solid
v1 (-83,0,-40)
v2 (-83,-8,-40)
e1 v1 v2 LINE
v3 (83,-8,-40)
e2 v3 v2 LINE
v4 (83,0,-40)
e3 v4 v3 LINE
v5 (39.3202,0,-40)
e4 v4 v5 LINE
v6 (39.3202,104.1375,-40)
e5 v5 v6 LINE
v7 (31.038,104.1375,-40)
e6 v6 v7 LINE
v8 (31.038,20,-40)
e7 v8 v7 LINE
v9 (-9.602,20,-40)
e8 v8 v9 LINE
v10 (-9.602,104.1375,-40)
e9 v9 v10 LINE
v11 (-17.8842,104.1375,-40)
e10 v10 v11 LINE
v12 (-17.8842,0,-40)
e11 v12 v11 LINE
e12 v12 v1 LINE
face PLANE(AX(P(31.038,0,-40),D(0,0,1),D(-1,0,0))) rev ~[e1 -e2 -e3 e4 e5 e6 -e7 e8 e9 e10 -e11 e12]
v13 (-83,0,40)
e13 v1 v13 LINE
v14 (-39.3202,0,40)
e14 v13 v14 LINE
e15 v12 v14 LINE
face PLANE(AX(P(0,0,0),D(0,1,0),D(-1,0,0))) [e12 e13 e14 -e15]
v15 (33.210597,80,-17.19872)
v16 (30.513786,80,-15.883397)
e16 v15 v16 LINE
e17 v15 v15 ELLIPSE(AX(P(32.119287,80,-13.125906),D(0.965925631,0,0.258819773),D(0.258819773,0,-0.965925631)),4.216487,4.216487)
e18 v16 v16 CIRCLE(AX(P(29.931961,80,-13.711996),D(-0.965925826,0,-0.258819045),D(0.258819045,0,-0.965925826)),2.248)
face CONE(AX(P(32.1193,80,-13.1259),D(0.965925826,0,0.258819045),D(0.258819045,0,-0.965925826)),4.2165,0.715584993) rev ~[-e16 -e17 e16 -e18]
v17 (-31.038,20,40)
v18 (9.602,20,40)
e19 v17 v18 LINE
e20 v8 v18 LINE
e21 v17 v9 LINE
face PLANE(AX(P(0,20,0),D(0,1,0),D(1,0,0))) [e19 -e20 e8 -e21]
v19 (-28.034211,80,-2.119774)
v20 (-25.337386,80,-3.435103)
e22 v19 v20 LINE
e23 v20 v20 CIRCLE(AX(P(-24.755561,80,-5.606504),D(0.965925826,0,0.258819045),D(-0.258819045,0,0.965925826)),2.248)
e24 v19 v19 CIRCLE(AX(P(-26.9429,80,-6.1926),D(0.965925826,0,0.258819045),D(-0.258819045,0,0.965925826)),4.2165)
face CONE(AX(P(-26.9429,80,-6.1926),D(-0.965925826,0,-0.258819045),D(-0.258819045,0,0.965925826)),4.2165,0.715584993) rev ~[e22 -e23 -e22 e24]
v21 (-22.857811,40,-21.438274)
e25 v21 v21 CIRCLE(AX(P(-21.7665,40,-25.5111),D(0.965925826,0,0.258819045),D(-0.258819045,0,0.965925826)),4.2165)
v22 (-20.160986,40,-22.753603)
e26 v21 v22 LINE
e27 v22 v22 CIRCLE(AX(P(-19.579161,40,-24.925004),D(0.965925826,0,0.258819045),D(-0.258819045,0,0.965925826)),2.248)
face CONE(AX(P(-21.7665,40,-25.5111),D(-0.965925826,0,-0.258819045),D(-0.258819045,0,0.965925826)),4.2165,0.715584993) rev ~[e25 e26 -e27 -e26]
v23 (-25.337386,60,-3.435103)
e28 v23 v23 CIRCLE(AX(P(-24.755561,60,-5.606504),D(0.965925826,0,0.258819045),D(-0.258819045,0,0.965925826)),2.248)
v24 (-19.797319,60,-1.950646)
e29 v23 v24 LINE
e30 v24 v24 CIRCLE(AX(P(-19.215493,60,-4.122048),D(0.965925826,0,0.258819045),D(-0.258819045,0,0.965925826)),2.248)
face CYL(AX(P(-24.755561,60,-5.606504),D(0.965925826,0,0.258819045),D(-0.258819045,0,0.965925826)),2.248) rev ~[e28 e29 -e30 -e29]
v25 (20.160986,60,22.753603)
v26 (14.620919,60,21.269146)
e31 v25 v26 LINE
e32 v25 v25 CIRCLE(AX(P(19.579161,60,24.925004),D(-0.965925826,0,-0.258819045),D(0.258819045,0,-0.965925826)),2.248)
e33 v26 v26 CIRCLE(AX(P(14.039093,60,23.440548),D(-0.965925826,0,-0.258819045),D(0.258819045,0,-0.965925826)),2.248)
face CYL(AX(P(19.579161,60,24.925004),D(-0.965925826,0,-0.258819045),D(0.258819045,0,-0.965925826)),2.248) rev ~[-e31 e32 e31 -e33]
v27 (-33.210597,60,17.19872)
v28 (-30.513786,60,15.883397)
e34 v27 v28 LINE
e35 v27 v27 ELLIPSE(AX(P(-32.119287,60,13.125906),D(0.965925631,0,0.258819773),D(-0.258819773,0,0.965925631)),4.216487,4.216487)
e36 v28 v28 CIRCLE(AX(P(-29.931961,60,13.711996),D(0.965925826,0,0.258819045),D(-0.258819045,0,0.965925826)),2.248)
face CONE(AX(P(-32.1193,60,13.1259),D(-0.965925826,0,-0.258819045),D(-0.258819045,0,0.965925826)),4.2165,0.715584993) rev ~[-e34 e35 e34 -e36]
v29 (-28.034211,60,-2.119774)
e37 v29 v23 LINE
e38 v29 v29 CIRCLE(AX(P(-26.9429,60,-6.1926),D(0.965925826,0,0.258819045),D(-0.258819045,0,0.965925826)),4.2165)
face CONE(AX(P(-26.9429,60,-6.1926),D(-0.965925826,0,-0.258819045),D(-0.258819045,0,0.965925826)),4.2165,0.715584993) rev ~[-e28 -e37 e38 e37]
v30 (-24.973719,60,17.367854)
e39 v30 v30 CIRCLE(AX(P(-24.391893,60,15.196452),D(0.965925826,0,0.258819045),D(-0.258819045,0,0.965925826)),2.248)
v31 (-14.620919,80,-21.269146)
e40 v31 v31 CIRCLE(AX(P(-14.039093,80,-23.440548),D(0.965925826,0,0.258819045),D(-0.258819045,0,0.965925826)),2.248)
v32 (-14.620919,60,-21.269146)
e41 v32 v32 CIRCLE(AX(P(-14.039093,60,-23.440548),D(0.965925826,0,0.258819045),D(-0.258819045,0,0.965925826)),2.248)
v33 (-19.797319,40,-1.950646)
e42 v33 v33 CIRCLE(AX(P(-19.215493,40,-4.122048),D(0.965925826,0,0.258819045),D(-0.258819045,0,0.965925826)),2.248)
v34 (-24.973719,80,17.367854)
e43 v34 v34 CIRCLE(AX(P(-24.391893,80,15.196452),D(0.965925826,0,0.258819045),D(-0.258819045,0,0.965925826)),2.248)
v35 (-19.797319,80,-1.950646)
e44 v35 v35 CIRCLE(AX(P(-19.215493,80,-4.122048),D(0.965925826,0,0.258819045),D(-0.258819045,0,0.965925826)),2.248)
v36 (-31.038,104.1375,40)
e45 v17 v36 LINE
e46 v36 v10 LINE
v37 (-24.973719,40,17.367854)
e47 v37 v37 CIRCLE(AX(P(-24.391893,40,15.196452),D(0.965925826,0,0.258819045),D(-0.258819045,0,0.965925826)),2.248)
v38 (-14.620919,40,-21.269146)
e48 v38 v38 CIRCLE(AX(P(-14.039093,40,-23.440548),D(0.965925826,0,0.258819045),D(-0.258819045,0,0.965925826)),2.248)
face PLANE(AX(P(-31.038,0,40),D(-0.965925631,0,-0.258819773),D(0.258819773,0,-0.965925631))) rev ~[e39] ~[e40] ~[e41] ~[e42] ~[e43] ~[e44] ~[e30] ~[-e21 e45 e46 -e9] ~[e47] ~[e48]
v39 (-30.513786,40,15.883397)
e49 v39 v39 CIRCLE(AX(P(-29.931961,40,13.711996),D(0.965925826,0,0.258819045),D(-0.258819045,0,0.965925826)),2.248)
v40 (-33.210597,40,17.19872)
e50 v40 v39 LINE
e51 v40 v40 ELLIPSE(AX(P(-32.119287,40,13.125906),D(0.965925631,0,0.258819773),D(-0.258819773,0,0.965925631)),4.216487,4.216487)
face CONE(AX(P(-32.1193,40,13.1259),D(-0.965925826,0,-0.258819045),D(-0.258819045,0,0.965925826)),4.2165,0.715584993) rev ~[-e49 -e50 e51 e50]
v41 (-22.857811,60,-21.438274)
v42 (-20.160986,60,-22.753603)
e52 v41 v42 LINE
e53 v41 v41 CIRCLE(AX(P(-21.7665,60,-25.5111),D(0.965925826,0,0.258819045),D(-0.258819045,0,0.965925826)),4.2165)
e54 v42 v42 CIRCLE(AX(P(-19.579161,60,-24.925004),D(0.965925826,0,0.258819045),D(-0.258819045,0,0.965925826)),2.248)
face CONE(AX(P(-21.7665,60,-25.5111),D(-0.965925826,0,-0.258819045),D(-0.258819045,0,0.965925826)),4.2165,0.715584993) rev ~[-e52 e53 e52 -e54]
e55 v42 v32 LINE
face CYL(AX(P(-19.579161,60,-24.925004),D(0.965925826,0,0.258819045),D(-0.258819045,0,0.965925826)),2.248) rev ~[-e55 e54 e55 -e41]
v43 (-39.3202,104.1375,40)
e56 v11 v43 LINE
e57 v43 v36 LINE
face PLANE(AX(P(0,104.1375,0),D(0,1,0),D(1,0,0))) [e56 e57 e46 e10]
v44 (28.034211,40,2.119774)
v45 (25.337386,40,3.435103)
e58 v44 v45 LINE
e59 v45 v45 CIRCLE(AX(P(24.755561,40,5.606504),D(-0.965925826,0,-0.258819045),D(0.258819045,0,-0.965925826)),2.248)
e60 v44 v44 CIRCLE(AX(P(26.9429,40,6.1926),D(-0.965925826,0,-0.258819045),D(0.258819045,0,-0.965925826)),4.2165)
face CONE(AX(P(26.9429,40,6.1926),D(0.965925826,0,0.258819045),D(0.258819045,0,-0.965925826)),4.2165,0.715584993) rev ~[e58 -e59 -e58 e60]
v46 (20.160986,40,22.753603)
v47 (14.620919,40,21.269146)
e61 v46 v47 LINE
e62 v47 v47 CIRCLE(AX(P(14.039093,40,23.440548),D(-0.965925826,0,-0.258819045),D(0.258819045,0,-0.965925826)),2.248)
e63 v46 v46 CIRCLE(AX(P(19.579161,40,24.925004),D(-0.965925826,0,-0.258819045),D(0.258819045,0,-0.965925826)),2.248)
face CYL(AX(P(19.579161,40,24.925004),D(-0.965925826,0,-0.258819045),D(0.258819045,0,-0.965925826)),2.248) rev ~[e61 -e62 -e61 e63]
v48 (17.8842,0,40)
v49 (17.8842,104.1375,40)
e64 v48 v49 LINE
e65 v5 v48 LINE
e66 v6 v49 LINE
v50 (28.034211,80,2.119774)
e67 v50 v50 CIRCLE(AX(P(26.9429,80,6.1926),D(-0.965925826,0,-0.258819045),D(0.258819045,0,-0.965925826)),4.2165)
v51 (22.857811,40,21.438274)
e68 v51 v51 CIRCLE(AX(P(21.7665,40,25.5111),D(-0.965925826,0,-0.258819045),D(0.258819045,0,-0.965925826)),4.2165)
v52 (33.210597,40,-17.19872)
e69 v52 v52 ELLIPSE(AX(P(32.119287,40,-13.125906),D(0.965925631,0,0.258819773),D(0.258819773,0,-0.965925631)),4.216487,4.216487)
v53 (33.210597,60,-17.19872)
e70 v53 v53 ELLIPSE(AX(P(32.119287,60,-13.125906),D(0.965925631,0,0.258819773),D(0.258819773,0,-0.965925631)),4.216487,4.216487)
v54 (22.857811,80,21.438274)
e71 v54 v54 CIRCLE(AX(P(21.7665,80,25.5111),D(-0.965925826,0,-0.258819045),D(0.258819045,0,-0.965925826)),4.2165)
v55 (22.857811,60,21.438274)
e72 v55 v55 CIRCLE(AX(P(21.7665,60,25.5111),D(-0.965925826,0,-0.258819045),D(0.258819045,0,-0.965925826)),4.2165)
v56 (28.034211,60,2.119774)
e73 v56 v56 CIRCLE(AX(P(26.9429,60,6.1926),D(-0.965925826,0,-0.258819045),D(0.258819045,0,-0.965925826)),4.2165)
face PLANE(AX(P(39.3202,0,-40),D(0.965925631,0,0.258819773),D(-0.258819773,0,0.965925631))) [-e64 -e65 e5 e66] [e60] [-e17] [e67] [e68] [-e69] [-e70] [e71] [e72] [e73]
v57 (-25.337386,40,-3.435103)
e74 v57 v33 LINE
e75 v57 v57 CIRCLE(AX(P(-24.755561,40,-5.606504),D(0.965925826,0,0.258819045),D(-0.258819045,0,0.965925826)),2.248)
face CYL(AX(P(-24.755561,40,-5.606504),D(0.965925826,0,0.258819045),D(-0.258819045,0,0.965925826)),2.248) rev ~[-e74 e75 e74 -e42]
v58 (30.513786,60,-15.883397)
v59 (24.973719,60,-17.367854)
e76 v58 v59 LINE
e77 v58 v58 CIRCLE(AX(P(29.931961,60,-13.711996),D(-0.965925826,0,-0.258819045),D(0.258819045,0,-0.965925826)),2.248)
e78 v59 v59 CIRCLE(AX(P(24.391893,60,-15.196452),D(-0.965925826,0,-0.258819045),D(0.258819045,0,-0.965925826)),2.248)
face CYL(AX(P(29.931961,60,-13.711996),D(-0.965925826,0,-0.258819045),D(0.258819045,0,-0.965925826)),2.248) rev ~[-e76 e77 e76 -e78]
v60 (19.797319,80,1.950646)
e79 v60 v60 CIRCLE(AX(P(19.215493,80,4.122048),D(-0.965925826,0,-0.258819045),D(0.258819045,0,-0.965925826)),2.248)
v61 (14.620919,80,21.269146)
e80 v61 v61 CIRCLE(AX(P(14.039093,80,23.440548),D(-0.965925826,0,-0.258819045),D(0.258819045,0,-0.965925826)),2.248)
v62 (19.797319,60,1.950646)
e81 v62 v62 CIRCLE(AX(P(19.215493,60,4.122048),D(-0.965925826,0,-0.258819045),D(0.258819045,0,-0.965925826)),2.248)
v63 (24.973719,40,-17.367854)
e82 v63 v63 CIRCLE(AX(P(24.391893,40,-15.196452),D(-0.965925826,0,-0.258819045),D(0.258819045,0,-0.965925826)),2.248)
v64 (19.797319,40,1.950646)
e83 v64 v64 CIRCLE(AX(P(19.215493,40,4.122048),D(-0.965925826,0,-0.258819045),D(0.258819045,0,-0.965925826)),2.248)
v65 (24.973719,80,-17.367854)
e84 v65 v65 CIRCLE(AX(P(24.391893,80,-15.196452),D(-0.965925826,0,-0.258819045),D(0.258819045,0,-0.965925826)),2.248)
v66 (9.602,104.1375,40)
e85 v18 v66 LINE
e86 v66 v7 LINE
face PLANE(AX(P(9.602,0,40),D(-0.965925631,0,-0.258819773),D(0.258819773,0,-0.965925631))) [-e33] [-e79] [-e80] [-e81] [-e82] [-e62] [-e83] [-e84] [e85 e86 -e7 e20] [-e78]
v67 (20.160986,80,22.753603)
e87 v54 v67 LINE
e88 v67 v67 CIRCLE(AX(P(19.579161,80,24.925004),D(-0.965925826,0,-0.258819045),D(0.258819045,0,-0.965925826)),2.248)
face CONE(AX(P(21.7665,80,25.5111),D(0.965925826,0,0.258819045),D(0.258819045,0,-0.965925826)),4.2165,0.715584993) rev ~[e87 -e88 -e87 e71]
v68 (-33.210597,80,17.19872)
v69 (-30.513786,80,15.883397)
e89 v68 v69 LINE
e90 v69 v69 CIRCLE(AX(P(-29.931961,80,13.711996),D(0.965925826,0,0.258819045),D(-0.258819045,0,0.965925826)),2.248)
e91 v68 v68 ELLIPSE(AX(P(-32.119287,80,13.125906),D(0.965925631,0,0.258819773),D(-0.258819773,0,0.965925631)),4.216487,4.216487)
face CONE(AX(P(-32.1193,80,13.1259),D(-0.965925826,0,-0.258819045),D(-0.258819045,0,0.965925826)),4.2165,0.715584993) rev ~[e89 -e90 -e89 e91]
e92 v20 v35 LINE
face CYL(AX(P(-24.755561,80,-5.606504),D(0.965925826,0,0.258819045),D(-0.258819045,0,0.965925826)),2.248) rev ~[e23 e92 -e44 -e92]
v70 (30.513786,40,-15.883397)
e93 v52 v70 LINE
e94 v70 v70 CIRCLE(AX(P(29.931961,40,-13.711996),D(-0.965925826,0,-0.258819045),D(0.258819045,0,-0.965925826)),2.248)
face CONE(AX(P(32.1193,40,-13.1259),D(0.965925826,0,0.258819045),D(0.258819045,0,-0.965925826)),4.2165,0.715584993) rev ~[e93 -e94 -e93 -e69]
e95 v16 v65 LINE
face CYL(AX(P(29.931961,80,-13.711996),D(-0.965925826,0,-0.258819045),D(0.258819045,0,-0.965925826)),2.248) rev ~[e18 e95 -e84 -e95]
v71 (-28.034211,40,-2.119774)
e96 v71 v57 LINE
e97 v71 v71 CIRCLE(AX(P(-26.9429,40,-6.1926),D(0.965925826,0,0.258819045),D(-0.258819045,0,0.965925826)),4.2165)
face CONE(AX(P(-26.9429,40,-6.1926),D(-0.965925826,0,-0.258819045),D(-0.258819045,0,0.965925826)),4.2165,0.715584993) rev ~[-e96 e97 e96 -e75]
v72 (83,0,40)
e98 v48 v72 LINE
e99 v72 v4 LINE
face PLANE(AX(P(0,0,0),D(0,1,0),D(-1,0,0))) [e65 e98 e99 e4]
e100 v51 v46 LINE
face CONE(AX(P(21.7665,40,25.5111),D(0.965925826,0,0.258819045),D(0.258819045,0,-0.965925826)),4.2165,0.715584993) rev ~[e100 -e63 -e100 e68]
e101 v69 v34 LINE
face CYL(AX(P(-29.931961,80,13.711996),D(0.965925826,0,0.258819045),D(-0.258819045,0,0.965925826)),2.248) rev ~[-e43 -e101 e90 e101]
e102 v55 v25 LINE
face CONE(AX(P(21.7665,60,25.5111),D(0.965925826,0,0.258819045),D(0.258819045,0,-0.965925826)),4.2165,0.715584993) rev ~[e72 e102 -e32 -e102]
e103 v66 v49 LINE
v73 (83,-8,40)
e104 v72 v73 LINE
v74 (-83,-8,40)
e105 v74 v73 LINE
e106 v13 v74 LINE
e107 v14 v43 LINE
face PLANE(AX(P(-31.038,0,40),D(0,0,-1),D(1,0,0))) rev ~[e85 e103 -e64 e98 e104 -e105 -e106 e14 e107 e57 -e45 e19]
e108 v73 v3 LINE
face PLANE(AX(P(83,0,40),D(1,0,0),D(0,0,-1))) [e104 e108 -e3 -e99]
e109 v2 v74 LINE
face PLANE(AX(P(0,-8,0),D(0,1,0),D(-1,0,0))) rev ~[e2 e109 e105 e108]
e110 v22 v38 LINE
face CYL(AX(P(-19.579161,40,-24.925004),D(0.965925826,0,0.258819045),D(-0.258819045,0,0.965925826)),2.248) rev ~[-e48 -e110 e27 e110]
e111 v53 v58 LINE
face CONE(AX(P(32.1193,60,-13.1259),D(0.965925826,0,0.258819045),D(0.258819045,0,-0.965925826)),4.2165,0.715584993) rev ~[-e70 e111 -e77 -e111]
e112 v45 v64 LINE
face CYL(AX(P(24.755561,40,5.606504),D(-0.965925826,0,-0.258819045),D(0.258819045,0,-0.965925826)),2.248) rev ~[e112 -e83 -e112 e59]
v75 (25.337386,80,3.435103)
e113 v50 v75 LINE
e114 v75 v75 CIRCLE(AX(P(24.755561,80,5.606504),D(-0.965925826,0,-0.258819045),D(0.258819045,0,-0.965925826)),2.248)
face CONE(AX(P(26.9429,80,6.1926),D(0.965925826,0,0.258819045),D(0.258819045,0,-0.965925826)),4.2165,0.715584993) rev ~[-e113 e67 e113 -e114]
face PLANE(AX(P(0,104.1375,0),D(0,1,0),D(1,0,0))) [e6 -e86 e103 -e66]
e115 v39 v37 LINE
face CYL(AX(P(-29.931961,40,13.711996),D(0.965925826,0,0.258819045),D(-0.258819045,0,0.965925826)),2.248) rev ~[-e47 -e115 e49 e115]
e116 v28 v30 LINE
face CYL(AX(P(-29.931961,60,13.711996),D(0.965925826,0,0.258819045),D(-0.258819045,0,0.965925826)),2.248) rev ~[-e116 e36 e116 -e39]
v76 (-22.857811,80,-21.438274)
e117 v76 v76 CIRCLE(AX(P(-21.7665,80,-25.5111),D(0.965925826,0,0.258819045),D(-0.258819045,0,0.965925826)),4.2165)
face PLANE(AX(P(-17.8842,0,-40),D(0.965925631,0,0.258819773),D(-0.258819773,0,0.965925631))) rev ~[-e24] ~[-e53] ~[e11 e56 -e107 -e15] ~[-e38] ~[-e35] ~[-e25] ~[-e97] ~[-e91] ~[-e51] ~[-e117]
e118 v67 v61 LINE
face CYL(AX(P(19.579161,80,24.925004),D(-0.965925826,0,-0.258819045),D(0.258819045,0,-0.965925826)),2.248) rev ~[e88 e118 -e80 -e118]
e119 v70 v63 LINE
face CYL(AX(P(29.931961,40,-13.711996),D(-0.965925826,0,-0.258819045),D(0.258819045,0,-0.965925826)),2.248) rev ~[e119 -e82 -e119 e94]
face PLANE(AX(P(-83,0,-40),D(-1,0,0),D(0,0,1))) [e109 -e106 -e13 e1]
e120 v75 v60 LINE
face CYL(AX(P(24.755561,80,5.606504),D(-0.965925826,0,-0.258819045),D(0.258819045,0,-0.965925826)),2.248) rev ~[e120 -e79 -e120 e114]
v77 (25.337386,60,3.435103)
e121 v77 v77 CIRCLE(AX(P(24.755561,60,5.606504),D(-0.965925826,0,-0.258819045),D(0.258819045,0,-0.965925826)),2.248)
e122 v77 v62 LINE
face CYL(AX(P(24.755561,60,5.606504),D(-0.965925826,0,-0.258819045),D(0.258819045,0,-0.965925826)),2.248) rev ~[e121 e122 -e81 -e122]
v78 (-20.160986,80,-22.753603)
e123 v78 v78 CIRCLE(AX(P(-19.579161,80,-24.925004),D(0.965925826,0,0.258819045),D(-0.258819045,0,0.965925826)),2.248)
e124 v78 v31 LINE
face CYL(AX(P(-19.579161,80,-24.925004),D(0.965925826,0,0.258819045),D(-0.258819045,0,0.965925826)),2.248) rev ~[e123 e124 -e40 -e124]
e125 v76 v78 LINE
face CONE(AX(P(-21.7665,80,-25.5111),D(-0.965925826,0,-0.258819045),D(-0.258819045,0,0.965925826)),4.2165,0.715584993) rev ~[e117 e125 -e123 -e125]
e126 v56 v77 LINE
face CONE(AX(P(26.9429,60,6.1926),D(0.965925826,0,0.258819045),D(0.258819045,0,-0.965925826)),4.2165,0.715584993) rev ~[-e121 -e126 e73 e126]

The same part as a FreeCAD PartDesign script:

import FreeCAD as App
import Part
import Sketcher

V = App.Vector
Q = App.Units.Quantity


def add_polygon(sketch, points):
    """Adds a closed chain of lines whose ends are joined by coincident constraints."""
    first, n = sketch.GeometryCount, len(points)
    for a, b in zip(points, points[1:] + points[:1]):
        sketch.addGeometry(Part.LineSegment(App.Vector(*a, 0), App.Vector(*b, 0)), False)
    for i in range(n):
        sketch.addConstraint(Sketcher.Constraint("Coincident", first + i, 2, first + (i + 1) % n, 1))

doc = App.newDocument("Part")
body = doc.addObject("PartDesign::Body", "Body")

sketch1 = body.newObject("Sketcher::SketchObject", "Sketch")
sketch1.AttachmentSupport = (doc.getObject("XZ_Plane"), [""])
sketch1.MapMode = "FlatFace"
add_polygon(sketch1, [(-83, -40), (-83, 40), (83, 40), (83, -40)])
sketch1.addConstraint([
    Sketcher.Constraint("Vertical", 0),
    Sketcher.Constraint("Horizontal", 1),
    Sketcher.Constraint("Vertical", 2),
    Sketcher.Constraint("Horizontal", 3),
    Sketcher.Constraint("Symmetric", 0, 2, 2, 2, -1, 1),
    Sketcher.Constraint("DistanceX", 1, 1, 1, 2, 166.0),
    Sketcher.Constraint("DistanceY", 0, 1, 0, 2, 80.0),
])
pad1 = body.newObject("PartDesign::Pad", "Pad")
pad1.Profile = sketch1
pad1.Length = 8

sketch2 = body.newObject("Sketcher::SketchObject", "Sketch001")
sketch2.AttachmentSupport = (doc.getObject("XZ_Plane"), [""])
sketch2.MapMode = "FlatFace"
add_polygon(sketch2, [(18, 40), (39, -40), (31, -40), (10, 40)])
add_polygon(sketch2, [(-31, 40), (-10, -40), (-18, -40), (-39, 40)])
sketch2.addConstraint([
    Sketcher.Constraint("Horizontal", 1),
    Sketcher.Constraint("Horizontal", 3),
    Sketcher.Constraint("Horizontal", 5),
    Sketcher.Constraint("Horizontal", 7),
    Sketcher.Constraint("Symmetric", 2, 2, 4, 2, -1, 1),
    Sketcher.Constraint("Symmetric", 0, 2, 6, 2, -1, 1),
    Sketcher.Constraint("Parallel", 0, 2),
    Sketcher.Constraint("Parallel", 2, 4),
    Sketcher.Constraint("Parallel", 4, 6),
    Sketcher.Constraint("Horizontal", 1, 2, 4, 2),
    Sketcher.Constraint("Angle", 0, Q("-75 deg")),
    Sketcher.Constraint("DistanceY", 0, 2, -1, 1, 40.0),
    Sketcher.Constraint("DistanceX", 4, 2, 1, 2, 40.64),
    Sketcher.Constraint("DistanceX", 1, 2, 1, 1, 8.2822),
])
pad2 = body.newObject("PartDesign::Pad", "Pad001")
pad2.Profile = sketch2
pad2.Length = 104.1375
pad2.Reversed = True

sketch3 = body.newObject("Sketcher::SketchObject", "Sketch002")
sketch3.AttachmentSupport = (doc.getObject("XZ_Plane"), [""])
sketch3.MapMode = "FlatFace"
add_polygon(sketch3, [(10, 40), (31, -40), (-10, -40), (-31, 40)])
sketch3.addConstraint([
    Sketcher.Constraint("Horizontal", 1),
    Sketcher.Constraint("Horizontal", 3),
    Sketcher.Constraint("Symmetric", 0, 2, 2, 2, -1, 1),
    Sketcher.Constraint("Parallel", 0, 2),
    Sketcher.Constraint("Angle", 0, Q("-75 deg")),
    Sketcher.Constraint("DistanceY", 0, 2, -1, 1, 40.0),
    Sketcher.Constraint("DistanceX", 1, 2, 1, 1, 40.64),
])
pad3 = body.newObject("PartDesign::Pad", "Pad002")
pad3.Profile = sketch3
pad3.Length = 20
pad3.Reversed = True

sketch4 = body.newObject("Sketcher::SketchObject", "Sketch003")
sketch4.Placement = App.Placement(V(-26.686196, 0, -7.150545), App.Rotation(V(-0.258819045, 0, 0.965925826), V(0, 0.999999999, 0), V(-0.965925826, 0, -0.258819045), "ZXY"))
sketch4.addGeometry([
    Part.Circle(V(-19, 40, 0), V(0, 0, 1), 2.2),
    Part.Circle(V(1, 40, 0), V(0, 0, 1), 2.2),
    Part.Circle(V(21, 40, 0), V(0, 0, 1), 2.2),
    Part.Circle(V(1, 60, 0), V(0, 0, 1), 2.2),
    Part.Circle(V(-19, 60, 0), V(0, 0, 1), 2.2),
    Part.Circle(V(21, 60, 0), V(0, 0, 1), 2.2),
    Part.Circle(V(21, 80, 0), V(0, 0, 1), 2.2),
    Part.Circle(V(1, 80, 0), V(0, 0, 1), 2.2),
    Part.Circle(V(-19, 80, 0), V(0, 0, 1), 2.2),
], False)
sketch4.addConstraint([
    Sketcher.Constraint("Equal", 0, 1),
    Sketcher.Constraint("Equal", 1, 2),
    Sketcher.Constraint("Equal", 2, 3),
    Sketcher.Constraint("Equal", 3, 4),
    Sketcher.Constraint("Equal", 4, 5),
    Sketcher.Constraint("Equal", 5, 6),
    Sketcher.Constraint("Equal", 6, 7),
    Sketcher.Constraint("Equal", 7, 8),
    Sketcher.Constraint("Horizontal", 0, 3, 1, 3),
    Sketcher.Constraint("Horizontal", 1, 3, 2, 3),
    Sketcher.Constraint("Horizontal", 3, 3, 4, 3),
    Sketcher.Constraint("Horizontal", 4, 3, 5, 3),
    Sketcher.Constraint("Horizontal", 6, 3, 7, 3),
    Sketcher.Constraint("Horizontal", 7, 3, 8, 3),
    Sketcher.Constraint("Vertical", 1, 3, 3, 3),
    Sketcher.Constraint("Vertical", 0, 3, 4, 3),
    Sketcher.Constraint("Vertical", 2, 3, 5, 3),
    Sketcher.Constraint("Vertical", 5, 3, 6, 3),
    Sketcher.Constraint("Vertical", 3, 3, 7, 3),
    Sketcher.Constraint("Vertical", 4, 3, 8, 3),
    Sketcher.Constraint("Diameter", 0, 4.496),
    Sketcher.Constraint("DistanceY", -1, 1, 0, 3, 40.0),
    Sketcher.Constraint("DistanceY", -1, 1, 3, 3, 60.0),
    Sketcher.Constraint("DistanceY", -1, 1, 6, 3, 80.0),
    Sketcher.Constraint("DistanceX", 0, 3, 1, 3, 20.0),
    Sketcher.Constraint("DistanceX", 1, 3, 2, 3, 20.0),
    Sketcher.Constraint("DistanceX", 0, 3, -1, 1, 19.0082),
])
doc.recompute()
hole = body.newObject("PartDesign::Hole", "Hole")
hole.Profile = sketch4
hole.ThreadType = "None"
hole.Diameter = 4.496
hole.DepthType = "Dimension"
hole.Depth = 8
hole.DrillPoint = "Flat"
hole.HoleCutType = "Countersink"
hole.HoleCutDiameter = 8.433
hole.HoleCutCountersinkAngle = 82

sketch5 = body.newObject("Sketcher::SketchObject", "Sketch004")
sketch5.Placement = App.Placement(V(26.686218, 0, 7.150551), App.Rotation(V(0.258819045, 0, -0.965925826), V(0, 0.999999999, 0), V(0.965925826, 0, 0.258819045), "ZXY"))
sketch5.addGeometry([
    Part.Circle(V(1, 40, 0), V(0, 0, 1), 2.2),
    Part.Circle(V(21, 40, 0), V(0, 0, 1), 2.2),
    Part.Circle(V(-19, 60, 0), V(0, 0, 1), 2.2),
    Part.Circle(V(1, 60, 0), V(0, 0, 1), 2.2),
    Part.Circle(V(21, 60, 0), V(0, 0, 1), 2.2),
    Part.Circle(V(-19, 80, 0), V(0, 0, 1), 2.2),
    Part.Circle(V(1, 80, 0), V(0, 0, 1), 2.2),
    Part.Circle(V(21, 80, 0), V(0, 0, 1), 2.2),
    Part.Circle(V(-19, 40, 0), V(0, 0, 1), 2.2),
], False)
sketch5.addConstraint([
    Sketcher.Constraint("Equal", 0, 1),
    Sketcher.Constraint("Equal", 1, 2),
    Sketcher.Constraint("Equal", 2, 3),
    Sketcher.Constraint("Equal", 3, 4),
    Sketcher.Constraint("Equal", 4, 5),
    Sketcher.Constraint("Equal", 5, 6),
    Sketcher.Constraint("Equal", 6, 7),
    Sketcher.Constraint("Equal", 7, 8),
    Sketcher.Constraint("Horizontal", 0, 3, 1, 3),
    Sketcher.Constraint("Horizontal", 2, 3, 3, 3),
    Sketcher.Constraint("Horizontal", 3, 3, 4, 3),
    Sketcher.Constraint("Horizontal", 5, 3, 6, 3),
    Sketcher.Constraint("Horizontal", 6, 3, 7, 3),
    Sketcher.Constraint("Horizontal", 1, 3, 8, 3),
    Sketcher.Constraint("Vertical", 0, 3, 3, 3),
    Sketcher.Constraint("Vertical", 1, 3, 4, 3),
    Sketcher.Constraint("Vertical", 2, 3, 5, 3),
    Sketcher.Constraint("Vertical", 3, 3, 6, 3),
    Sketcher.Constraint("Vertical", 4, 3, 7, 3),
    Sketcher.Constraint("Vertical", 5, 3, 8, 3),
    Sketcher.Constraint("Diameter", 0, 4.496),
    Sketcher.Constraint("DistanceY", -1, 1, 0, 3, 40.0),
    Sketcher.Constraint("DistanceY", -1, 1, 2, 3, 60.0),
    Sketcher.Constraint("DistanceY", -1, 1, 5, 3, 80.0),
    Sketcher.Constraint("DistanceX", 0, 3, 1, 3, 20.0),
    Sketcher.Constraint("DistanceX", 2, 3, 0, 3, 20.0),
    Sketcher.Constraint("DistanceX", -1, 1, 0, 3, 0.9917),
])
doc.recompute()
hole2 = body.newObject("PartDesign::Hole", "Hole001")
hole2.Profile = sketch5
hole2.ThreadType = "None"
hole2.Diameter = 4.496
hole2.DepthType = "Dimension"
hole2.Depth = 8
hole2.DrillPoint = "Flat"
hole2.HoleCutType = "Countersink"
hole2.HoleCutDiameter = 8.433
hole2.HoleCutCountersinkAngle = 82

doc.recompute()
